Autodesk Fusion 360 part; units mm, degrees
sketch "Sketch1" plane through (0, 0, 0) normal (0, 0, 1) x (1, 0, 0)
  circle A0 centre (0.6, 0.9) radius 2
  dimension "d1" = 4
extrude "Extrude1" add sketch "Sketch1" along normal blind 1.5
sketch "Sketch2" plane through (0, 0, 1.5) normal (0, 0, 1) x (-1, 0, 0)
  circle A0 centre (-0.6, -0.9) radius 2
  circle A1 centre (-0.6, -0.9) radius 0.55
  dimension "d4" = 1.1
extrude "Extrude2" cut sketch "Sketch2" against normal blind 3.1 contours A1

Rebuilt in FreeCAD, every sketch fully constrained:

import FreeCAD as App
import Part
import Sketcher
from FreeCAD import Vector
Q = App.Units.Quantity

doc = App.newDocument("Part")
body = doc.addObject("PartDesign::Body", "Body")

# Sketch on XY plane
sketch1 = body.newObject("Sketcher::SketchObject", "Sketch")
sketch1.AttachmentSupport = (doc.getObject("XY_Plane"), [""])
sketch1.MapMode = "FlatFace"
sketch1.addGeometry(Part.Circle(Vector(0.6, 0.9, 0), Vector(0, 0, 1), 2), False)
sketch1.addConstraint(Sketcher.Constraint("Diameter", 0, Q("4 mm")))
sketch1.addConstraint(Sketcher.Constraint("DistanceX", -1, 1, 0, 3, Q("0.6 mm")))
sketch1.addConstraint(Sketcher.Constraint("DistanceY", -1, 1, 0, 3, Q("0.9 mm")))
pad1 = body.newObject("PartDesign::Pad", "Pad")
pad1.Profile = sketch1
pad1.Length = 1.5

# Sketch on XY plane
sketch2 = body.newObject("Sketcher::SketchObject", "Sketch001")
sketch2.AttachmentSupport = (doc.getObject("XY_Plane"), [""])
sketch2.MapMode = "FlatFace"
sketch2.AttachmentOffset = App.Placement(Vector(0, 0, 1.5), App.Rotation())
sketch2.addGeometry(Part.Circle(Vector(0.6, 0.9, 0), Vector(0, 0, 1), 0.6), False)
sketch2.addConstraint(Sketcher.Constraint("Diameter", 0, Q("1.1 mm")))
sketch2.addConstraint(Sketcher.Constraint("DistanceX", -1, 1, 0, 3, Q("0.6 mm")))
sketch2.addConstraint(Sketcher.Constraint("DistanceY", -1, 1, 0, 3, Q("0.9 mm")))
pocket1 = body.newObject("PartDesign::Pocket", "Pocket")
pocket1.Profile = sketch2
pocket1.Length = 3.1

doc.recompute()
